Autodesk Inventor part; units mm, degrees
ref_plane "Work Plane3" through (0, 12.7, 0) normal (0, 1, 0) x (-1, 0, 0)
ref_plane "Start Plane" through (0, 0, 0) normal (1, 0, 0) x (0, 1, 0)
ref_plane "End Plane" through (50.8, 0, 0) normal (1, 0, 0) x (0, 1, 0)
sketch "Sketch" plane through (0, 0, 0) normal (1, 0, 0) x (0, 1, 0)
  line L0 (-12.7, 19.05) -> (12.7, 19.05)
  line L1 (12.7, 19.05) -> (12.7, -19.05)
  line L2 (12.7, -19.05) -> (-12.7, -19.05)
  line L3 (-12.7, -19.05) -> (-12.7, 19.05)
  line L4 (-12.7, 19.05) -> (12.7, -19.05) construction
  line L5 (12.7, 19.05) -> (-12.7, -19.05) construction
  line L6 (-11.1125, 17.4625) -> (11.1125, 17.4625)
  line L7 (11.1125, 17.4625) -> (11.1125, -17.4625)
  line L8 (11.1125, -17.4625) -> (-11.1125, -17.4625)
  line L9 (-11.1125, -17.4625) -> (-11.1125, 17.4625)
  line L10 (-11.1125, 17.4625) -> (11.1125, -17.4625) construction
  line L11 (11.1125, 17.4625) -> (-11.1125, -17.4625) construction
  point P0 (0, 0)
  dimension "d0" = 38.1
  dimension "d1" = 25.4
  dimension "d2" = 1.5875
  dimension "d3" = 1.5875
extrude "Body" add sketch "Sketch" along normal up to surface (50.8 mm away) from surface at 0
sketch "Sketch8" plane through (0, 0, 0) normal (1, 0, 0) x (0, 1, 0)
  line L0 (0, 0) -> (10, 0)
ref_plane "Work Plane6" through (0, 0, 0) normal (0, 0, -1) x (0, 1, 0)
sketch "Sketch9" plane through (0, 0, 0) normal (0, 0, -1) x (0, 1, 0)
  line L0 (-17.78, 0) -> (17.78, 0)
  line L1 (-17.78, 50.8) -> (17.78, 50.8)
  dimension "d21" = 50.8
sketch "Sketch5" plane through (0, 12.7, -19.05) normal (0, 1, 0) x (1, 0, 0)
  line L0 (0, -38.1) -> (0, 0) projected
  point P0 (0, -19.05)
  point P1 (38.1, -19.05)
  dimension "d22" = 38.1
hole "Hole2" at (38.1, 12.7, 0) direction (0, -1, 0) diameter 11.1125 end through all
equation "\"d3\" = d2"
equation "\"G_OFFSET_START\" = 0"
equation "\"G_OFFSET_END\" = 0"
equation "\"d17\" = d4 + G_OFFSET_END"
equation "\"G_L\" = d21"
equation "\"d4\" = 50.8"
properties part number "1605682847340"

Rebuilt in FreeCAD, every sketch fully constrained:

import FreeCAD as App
import Part
import Sketcher
Q = App.Units.Quantity


def add_polygon(sketch, points):
    """Adds a closed chain of lines whose ends are joined by coincident constraints."""
    first, n = sketch.GeometryCount, len(points)
    for a, b in zip(points, points[1:] + points[:1]):
        sketch.addGeometry(Part.LineSegment(App.Vector(*a, 0), App.Vector(*b, 0)), False)
    for i in range(n):
        sketch.addConstraint(Sketcher.Constraint("Coincident", first + i, 2, first + (i + 1) % n, 1))

doc = App.newDocument("Part")
body = doc.addObject("PartDesign::Body", "Body")

# Sketch on YZ plane
sketch1 = body.newObject("Sketcher::SketchObject", "Sketch")
sketch1.AttachmentSupport = (doc.getObject("YZ_Plane"), [""])
sketch1.MapMode = "FlatFace"
add_polygon(sketch1, [(12.7, 19.05), (-12.7, 19.05), (-12.7, -19.05), (12.7, -19.05)])  # lines 0-3
add_polygon(sketch1, [(-11.1125, -17.4625), (-11.1125, 17.4625), (11.1125, 17.4625), (11.1125, -17.4625)])  # lines 4-7
sketch1.addConstraint([
    Sketcher.Constraint("Horizontal", 0),
    Sketcher.Constraint("Vertical", 1),
    Sketcher.Constraint("Horizontal", 2),
    Sketcher.Constraint("Vertical", 3),
    Sketcher.Constraint("Vertical", 4),
    Sketcher.Constraint("Horizontal", 5),
    Sketcher.Constraint("Vertical", 6),
    Sketcher.Constraint("Horizontal", 7),
    Sketcher.Constraint("Symmetric", 0, 2, 2, 2, -1, 1),
    Sketcher.Constraint("Symmetric", 4, 2, 6, 2, -1, 1),
    Sketcher.Constraint("DistanceX", 0, 2, 0, 1, Q("1 in")),
    Sketcher.Constraint("DistanceY", 1, 2, 1, 1, Q("1.5 in")),
    Sketcher.Constraint("DistanceX", 0, 2, 4, 2, Q("0.0625 in")),
    Sketcher.Constraint("DistanceY", 4, 2, 0, 2, Q("0.0625 in")),
])
pad1 = body.newObject("PartDesign::Pad", "Pad")
pad1.Profile = sketch1
pad1.Length = Q("2 in")

# Sketch on XZ plane
sketch2 = body.newObject("Sketcher::SketchObject", "Sketch001")
sketch2.AttachmentSupport = (doc.getObject("XZ_Plane"), [""])
sketch2.MapMode = "FlatFace"
sketch2.AttachmentOffset = App.Placement(App.Vector(0, 0, -0.5 * 25.4), App.Rotation())
sketch2.addGeometry(Part.Circle(App.Vector(38.1, 0, 0), App.Vector(0, 0, 1), 5.55625), False)
sketch2.addConstraint([
    Sketcher.Constraint("PointOnObject", 0, 3, -1),
    Sketcher.Constraint("Diameter", 0, Q("0.4375 in")),
    Sketcher.Constraint("DistanceX", -1, 1, 0, 3, Q("1.5 in")),
])
doc.recompute()
hole = body.newObject("PartDesign::Hole", "Hole")
hole.Profile = sketch2
hole.ThreadType = "None"
hole.Diameter = Q("0.4375 in")
hole.DepthType = "ThroughAll"
hole.Reversed = True

doc.recompute()
